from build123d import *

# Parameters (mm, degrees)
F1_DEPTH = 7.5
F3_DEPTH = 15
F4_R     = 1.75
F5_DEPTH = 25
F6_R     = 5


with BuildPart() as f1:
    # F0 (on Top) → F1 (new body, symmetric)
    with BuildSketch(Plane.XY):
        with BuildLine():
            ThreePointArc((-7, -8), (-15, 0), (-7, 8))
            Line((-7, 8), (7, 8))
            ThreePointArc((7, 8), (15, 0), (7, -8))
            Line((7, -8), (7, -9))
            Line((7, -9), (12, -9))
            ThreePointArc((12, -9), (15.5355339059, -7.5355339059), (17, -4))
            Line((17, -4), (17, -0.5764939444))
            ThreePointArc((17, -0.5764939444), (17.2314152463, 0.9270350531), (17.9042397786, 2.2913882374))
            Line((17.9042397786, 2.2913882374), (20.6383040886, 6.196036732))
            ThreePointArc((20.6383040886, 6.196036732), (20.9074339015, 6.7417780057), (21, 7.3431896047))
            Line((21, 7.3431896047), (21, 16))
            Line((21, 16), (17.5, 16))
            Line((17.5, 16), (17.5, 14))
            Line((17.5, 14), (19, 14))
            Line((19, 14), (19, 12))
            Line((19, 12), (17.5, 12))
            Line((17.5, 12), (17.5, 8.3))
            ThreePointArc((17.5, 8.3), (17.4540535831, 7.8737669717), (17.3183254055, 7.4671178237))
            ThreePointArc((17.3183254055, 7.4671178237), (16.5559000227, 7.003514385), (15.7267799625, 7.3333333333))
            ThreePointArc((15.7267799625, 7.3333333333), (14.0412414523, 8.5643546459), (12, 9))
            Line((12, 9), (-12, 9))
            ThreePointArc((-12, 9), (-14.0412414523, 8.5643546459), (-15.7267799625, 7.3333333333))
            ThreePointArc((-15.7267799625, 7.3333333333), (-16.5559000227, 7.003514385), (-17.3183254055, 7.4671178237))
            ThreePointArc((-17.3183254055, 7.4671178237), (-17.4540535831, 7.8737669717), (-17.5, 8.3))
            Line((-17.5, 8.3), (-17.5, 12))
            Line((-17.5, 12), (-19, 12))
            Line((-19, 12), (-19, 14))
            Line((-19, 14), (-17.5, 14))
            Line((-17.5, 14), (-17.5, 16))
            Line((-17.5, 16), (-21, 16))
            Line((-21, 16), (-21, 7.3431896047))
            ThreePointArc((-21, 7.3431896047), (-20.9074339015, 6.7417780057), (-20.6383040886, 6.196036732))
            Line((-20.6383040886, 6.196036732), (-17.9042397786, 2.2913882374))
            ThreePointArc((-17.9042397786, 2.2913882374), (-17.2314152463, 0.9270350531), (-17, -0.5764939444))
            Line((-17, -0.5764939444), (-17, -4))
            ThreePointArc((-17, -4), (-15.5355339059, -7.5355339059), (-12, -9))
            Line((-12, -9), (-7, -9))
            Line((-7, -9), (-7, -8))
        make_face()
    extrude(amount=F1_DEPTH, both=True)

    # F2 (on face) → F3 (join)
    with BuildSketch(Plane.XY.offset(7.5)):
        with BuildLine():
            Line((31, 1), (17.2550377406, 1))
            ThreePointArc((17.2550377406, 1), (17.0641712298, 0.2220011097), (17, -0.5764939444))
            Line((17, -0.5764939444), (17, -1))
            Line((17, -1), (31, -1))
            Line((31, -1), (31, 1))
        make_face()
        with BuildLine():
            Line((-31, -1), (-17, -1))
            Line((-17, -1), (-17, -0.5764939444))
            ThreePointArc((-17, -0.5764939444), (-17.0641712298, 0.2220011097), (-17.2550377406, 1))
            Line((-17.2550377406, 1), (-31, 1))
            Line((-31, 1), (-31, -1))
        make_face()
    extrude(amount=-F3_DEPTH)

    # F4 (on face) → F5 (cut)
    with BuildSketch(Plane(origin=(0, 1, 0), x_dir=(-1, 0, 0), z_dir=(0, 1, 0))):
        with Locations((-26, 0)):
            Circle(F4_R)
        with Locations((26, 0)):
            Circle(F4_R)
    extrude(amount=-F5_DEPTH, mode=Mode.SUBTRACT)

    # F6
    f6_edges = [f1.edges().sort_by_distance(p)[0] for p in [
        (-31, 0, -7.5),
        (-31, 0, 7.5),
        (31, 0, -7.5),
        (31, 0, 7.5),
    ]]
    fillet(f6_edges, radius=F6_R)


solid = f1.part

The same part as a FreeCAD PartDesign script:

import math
import FreeCAD as App
import Part
import Sketcher

V = App.Vector
Q = App.Units.Quantity


def edges_at(feature, points):
    """Names of the edges that pass closest to the given points."""
    edges = feature.Shape.Edges
    near = lambda p: min(range(len(edges)), key=lambda i: edges[i].distToShape(Part.Vertex(*p))[0])
    return sorted({f"Edge{near(p) + 1}" for p in points})

doc = App.newDocument("Part")
body = doc.addObject("PartDesign::Body", "Body")

sketch1 = body.newObject("Sketcher::SketchObject", "Sketch")
sketch1.AttachmentSupport = (doc.getObject("XY_Plane"), [""])
sketch1.MapMode = "FlatFace"
sketch1.addGeometry([
    Part.ArcOfCircle(Part.Circle(V(-7, 0, 0), V(0, 0, 1), 8), math.radians(90), math.radians(270)),
    Part.LineSegment(V(-7, 8, 0), V(7, 8, 0)),
    Part.ArcOfCircle(Part.Circle(V(7, 0, 0), V(0, 0, 1), 8), math.radians(-90), math.radians(90)),
    Part.LineSegment(V(7, -8, 0), V(7, -9, 0)),
    Part.LineSegment(V(7, -9, 0), V(12, -9, 0)),
    Part.ArcOfCircle(Part.Circle(V(12, -4, 0), V(0, 0, 1), 5), math.radians(-90), math.radians(0)),
    Part.LineSegment(V(17, -4, 0), V(17, -0.576494, 0)),
    Part.ArcOfCircle(Part.Circle(V(22, -0.576494, 0), V(0, 0, 1), 5), math.radians(145), math.radians(180)),
    Part.LineSegment(V(17.90424, 2.291388, 0), V(20.638304, 6.196037, 0)),
    Part.ArcOfCircle(Part.Circle(V(19, 7.34319, 0), V(0, 0, 1), 2), math.radians(-35), math.radians(0)),
    Part.LineSegment(V(21, 7.34319, 0), V(21, 16, 0)),
    Part.LineSegment(V(21, 16, 0), V(17.5, 16, 0)),
    Part.LineSegment(V(17.5, 16, 0), V(17.5, 14, 0)),
    Part.LineSegment(V(17.5, 14, 0), V(19, 14, 0)),
    Part.LineSegment(V(19, 14, 0), V(19, 12, 0)),
    Part.LineSegment(V(19, 12, 0), V(17.5, 12, 0)),
    Part.LineSegment(V(17.5, 12, 0), V(17.5, 8.3, 0)),
    Part.ArcOfCircle(Part.Circle(V(15.5, 8.3, 0), V(0, 0, 1), 2), math.radians(-24.610101), math.radians(0)),
    Part.ArcOfCircle(Part.Circle(V(16.472136, 8, 0), V(0, 0, 1), 1), math.radians(-138.189685), math.radians(-32.200399)),
    Part.ArcOfCircle(Part.Circle(V(12, 4, 0), V(0, 0, 1), 5), math.radians(41.810315), math.radians(90)),
    Part.LineSegment(V(12, 9, 0), V(-12, 9, 0)),
    Part.ArcOfCircle(Part.Circle(V(-12, 4, 0), V(0, 0, 1), 5), math.radians(90), math.radians(138.189685)),
    Part.ArcOfCircle(Part.Circle(V(-16.472136, 8, 0), V(0, 0, 1), 1), math.radians(-147.799601), math.radians(-41.810315)),
    Part.ArcOfCircle(Part.Circle(V(-15.5, 8.3, 0), V(0, 0, 1), 2), math.radians(180), math.radians(204.610101)),
    Part.LineSegment(V(-17.5, 8.3, 0), V(-17.5, 12, 0)),
    Part.LineSegment(V(-17.5, 12, 0), V(-19, 12, 0)),
    Part.LineSegment(V(-19, 12, 0), V(-19, 14, 0)),
    Part.LineSegment(V(-19, 14, 0), V(-17.5, 14, 0)),
    Part.LineSegment(V(-17.5, 14, 0), V(-17.5, 16, 0)),
    Part.LineSegment(V(-17.5, 16, 0), V(-21, 16, 0)),
    Part.LineSegment(V(-21, 16, 0), V(-21, 7.34319, 0)),
    Part.ArcOfCircle(Part.Circle(V(-19, 7.34319, 0), V(0, 0, 1), 2), math.radians(180), math.radians(215)),
    Part.LineSegment(V(-20.638304, 6.196037, 0), V(-17.90424, 2.291388, 0)),
    Part.ArcOfCircle(Part.Circle(V(-22, -0.576494, 0), V(0, 0, 1), 5), math.radians(0), math.radians(35)),
    Part.LineSegment(V(-17, -0.576494, 0), V(-17, -4, 0)),
    Part.ArcOfCircle(Part.Circle(V(-12, -4, 0), V(0, 0, 1), 5), math.radians(180), math.radians(270)),
    Part.LineSegment(V(-12, -9, 0), V(-7, -9, 0)),
    Part.LineSegment(V(-7, -9, 0), V(-7, -8, 0)),
], False)
sketch1.addConstraint([
    Sketcher.Constraint("Tangent", 0, 1, 1, 1),
    Sketcher.Constraint("Tangent", 1, 2, 2, 2),
    Sketcher.Constraint("Coincident", 2, 1, 3, 1),
    Sketcher.Constraint("Coincident", 3, 2, 4, 1),
    Sketcher.Constraint("Tangent", 4, 2, 5, 1),
    Sketcher.Constraint("Tangent", 5, 2, 6, 1),
    Sketcher.Constraint("Tangent", 6, 2, 7, 2),
    Sketcher.Constraint("Tangent", 7, 1, 8, 1),
    Sketcher.Constraint("Tangent", 8, 2, 9, 1),
    Sketcher.Constraint("Tangent", 9, 2, 10, 1),
    Sketcher.Constraint("Coincident", 10, 2, 11, 1),
    Sketcher.Constraint("Coincident", 11, 2, 12, 1),
    Sketcher.Constraint("Coincident", 12, 2, 13, 1),
    Sketcher.Constraint("Coincident", 13, 2, 14, 1),
    Sketcher.Constraint("Coincident", 14, 2, 15, 1),
    Sketcher.Constraint("Coincident", 15, 2, 16, 1),
    Sketcher.Constraint("Tangent", 16, 2, 17, 2),
    Sketcher.Constraint("Coincident", 17, 1, 18, 2),
    Sketcher.Constraint("Tangent", 18, 1, 19, 1),
    Sketcher.Constraint("Tangent", 19, 2, 20, 1),
    Sketcher.Constraint("Tangent", 20, 2, 21, 1),
    Sketcher.Constraint("Tangent", 21, 2, 22, 2),
    Sketcher.Constraint("Coincident", 22, 1, 23, 2),
    Sketcher.Constraint("Tangent", 23, 1, 24, 1),
    Sketcher.Constraint("Coincident", 24, 2, 25, 1),
    Sketcher.Constraint("Coincident", 25, 2, 26, 1),
    Sketcher.Constraint("Coincident", 26, 2, 27, 1),
    Sketcher.Constraint("Coincident", 27, 2, 28, 1),
    Sketcher.Constraint("Coincident", 28, 2, 29, 1),
    Sketcher.Constraint("Coincident", 29, 2, 30, 1),
    Sketcher.Constraint("Tangent", 30, 2, 31, 1),
    Sketcher.Constraint("Tangent", 31, 2, 32, 1),
    Sketcher.Constraint("Tangent", 32, 2, 33, 2),
    Sketcher.Constraint("Tangent", 33, 1, 34, 1),
    Sketcher.Constraint("Tangent", 34, 2, 35, 1),
    Sketcher.Constraint("Tangent", 35, 2, 36, 1),
    Sketcher.Constraint("Coincident", 36, 2, 37, 1),
    Sketcher.Constraint("Coincident", 37, 2, 0, 2),
    Sketcher.Constraint("Horizontal", 1),
    Sketcher.Constraint("Vertical", 3),
    Sketcher.Constraint("Horizontal", 4),
    Sketcher.Constraint("Vertical", 6),
    Sketcher.Constraint("Vertical", 10),
    Sketcher.Constraint("Horizontal", 11),
    Sketcher.Constraint("Vertical", 12),
    Sketcher.Constraint("Horizontal", 13),
    Sketcher.Constraint("Vertical", 14),
    Sketcher.Constraint("Horizontal", 15),
    Sketcher.Constraint("Vertical", 16),
    Sketcher.Constraint("Horizontal", 20),
    Sketcher.Constraint("Vertical", 24),
    Sketcher.Constraint("Horizontal", 25),
    Sketcher.Constraint("Vertical", 26),
    Sketcher.Constraint("Horizontal", 27),
    Sketcher.Constraint("Vertical", 28),
    Sketcher.Constraint("Horizontal", 29),
    Sketcher.Constraint("Vertical", 30),
    Sketcher.Constraint("Vertical", 34),
    Sketcher.Constraint("Horizontal", 36),
    Sketcher.Constraint("Vertical", 37),
    Sketcher.Constraint("Equal", 0, 2),
    Sketcher.Constraint("Equal", 5, 7),
    Sketcher.Constraint("Equal", 9, 17),
    Sketcher.Constraint("Equal", 7, 19),
    Sketcher.Constraint("Equal", 19, 21),
    Sketcher.Constraint("Equal", 18, 22),
    Sketcher.Constraint("Equal", 17, 23),
    Sketcher.Constraint("Equal", 23, 31),
    Sketcher.Constraint("Equal", 21, 33),
    Sketcher.Constraint("Equal", 33, 35),
    Sketcher.Constraint("Symmetric", 0, 3, 2, 3, -1, 1),
    Sketcher.Constraint("Symmetric", 5, 3, 21, 3, -1, 1),
    Sketcher.Constraint("Symmetric", 19, 3, 35, 3, -1, 1),
    Sketcher.Constraint("Symmetric", 18, 3, 22, 3, -2),
    Sketcher.Constraint("Symmetric", 17, 3, 23, 3, -2),
    Sketcher.Constraint("Symmetric", 9, 3, 31, 3, -2),
    Sketcher.Constraint("Symmetric", 14, 2, 25, 2, -2),
    Sketcher.Constraint("Symmetric", 12, 2, 27, 2, -2),
    Sketcher.Constraint("Horizontal", 7, 3, 33, 3),
    Sketcher.Constraint("Horizontal", 22, 3, 0, 1),
    Sketcher.Constraint("Horizontal", 11, 2, 28, 2),
    Sketcher.Constraint("Vertical", 1, 2, 2, 1),
    Sketcher.Constraint("Vertical", 9, 3, 13, 2),
    Sketcher.Constraint("Vertical", 12, 2, 15, 2),
    Sketcher.Constraint("Vertical", 0, 1, 36, 2),
    Sketcher.Constraint("Equal", 12, 14),
    Sketcher.Constraint("Radius", 0, Q("8 mm")),
    Sketcher.Constraint("Radius", 5, Q("5 mm")),
    Sketcher.Constraint("Radius", 9, Q("2 mm")),
    Sketcher.Constraint("Radius", 18, Q("1 mm")),
    Sketcher.Constraint("DistanceX", 1, 1, 1, 2, Q("14 mm")),
    Sketcher.Constraint("DistanceX", 4, 1, 4, 2, Q("5 mm")),
    Sketcher.Constraint("DistanceY", 3, 2, 3, 1, Q("1 mm")),
    Sketcher.Constraint("DistanceY", 12, 2, 12, 1, Q("2 mm")),
    Sketcher.Constraint("Angle", 8, Q("55 deg")),
    Sketcher.Constraint("DistanceX", 11, 2, 11, 1, Q("3.5 mm")),
    Sketcher.Constraint("DistanceY", 16, 2, 16, 1, Q("3.7 mm")),
    Sketcher.Constraint("DistanceX", -1, 1, 9, 3, Q("19 mm")),
    Sketcher.Constraint("DistanceY", -1, 1, 10, 2, Q("16 mm")),
    Sketcher.Constraint("DistanceY", 10, 1, 10, 2, Q("8.65681 mm")),
])
pad1 = body.newObject("PartDesign::Pad", "Pad")
pad1.Profile = sketch1
pad1.Length = 15
pad1.Midplane = True

sketch2 = body.newObject("Sketcher::SketchObject", "Sketch001")
sketch2.AttachmentSupport = (doc.getObject("XY_Plane"), [""])
sketch2.MapMode = "FlatFace"
sketch2.AttachmentOffset = App.Placement(V(0, 0, 7.5), App.Rotation())
sketch2.addGeometry([
    Part.LineSegment(V(31, 1, 0), V(17.255038, 1, 0)),
    Part.ArcOfCircle(Part.Circle(V(22, -0.576494, 0), V(0, 0, 1), 5), math.radians(161.621148), math.radians(180)),
    Part.LineSegment(V(17, -0.576494, 0), V(17, -1, 0)),
    Part.LineSegment(V(17, -1, 0), V(31, -1, 0)),
    Part.LineSegment(V(31, -1, 0), V(31, 1, 0)),
    Part.LineSegment(V(-31, -1, 0), V(-17, -1, 0)),
    Part.LineSegment(V(-17, -1, 0), V(-17, -0.576494, 0)),
    Part.ArcOfCircle(Part.Circle(V(-22, -0.576494, 0), V(0, 0, 1), 5), math.radians(0), math.radians(18.378852)),
    Part.LineSegment(V(-17.255038, 1, 0), V(-31, 1, 0)),
    Part.LineSegment(V(-31, 1, 0), V(-31, -1, 0)),
], False)
sketch2.addConstraint([
    Sketcher.Constraint("Coincident", 0, 2, 1, 1),
    Sketcher.Constraint("Tangent", 1, 2, 2, 1),
    Sketcher.Constraint("Coincident", 2, 2, 3, 1),
    Sketcher.Constraint("Coincident", 3, 2, 4, 1),
    Sketcher.Constraint("Coincident", 4, 2, 0, 1),
    Sketcher.Constraint("Coincident", 5, 2, 6, 1),
    Sketcher.Constraint("Tangent", 6, 2, 7, 1),
    Sketcher.Constraint("Coincident", 7, 2, 8, 1),
    Sketcher.Constraint("Coincident", 8, 2, 9, 1),
    Sketcher.Constraint("Coincident", 9, 2, 5, 1),
    Sketcher.Constraint("Horizontal", 0),
    Sketcher.Constraint("Vertical", 2),
    Sketcher.Constraint("Horizontal", 3),
    Sketcher.Constraint("Vertical", 4),
    Sketcher.Constraint("Horizontal", 5),
    Sketcher.Constraint("Vertical", 6),
    Sketcher.Constraint("Horizontal", 8),
    Sketcher.Constraint("Vertical", 9),
    Sketcher.Constraint("Equal", 1, 7),
    Sketcher.Constraint("Symmetric", 3, 2, 8, 2, -1, 1),
    Sketcher.Constraint("Symmetric", 1, 3, 7, 3, -2),
    Sketcher.Constraint("Horizontal", 3, 2, 5, 2),
    Sketcher.Constraint("Horizontal", 4, 2, 7, 2),
    Sketcher.Constraint("Radius", 1, Q("5 mm")),
    Sketcher.Constraint("DistanceX", 3, 1, 3, 2, Q("14 mm")),
    Sketcher.Constraint("DistanceY", 4, 1, 4, 2, Q("2 mm")),
    Sketcher.Constraint("DistanceX", -1, 1, 1, 3, Q("22 mm")),
    Sketcher.Constraint("DistanceX", 0, 2, 0, 1, Q("13.744962 mm")),
])
pad2 = body.newObject("PartDesign::Pad", "Pad001")
pad2.Profile = sketch2
pad2.Length = 15
pad2.Reversed = True

sketch3 = body.newObject("Sketcher::SketchObject", "Sketch002")
sketch3.AttachmentSupport = (doc.getObject("XZ_Plane"), [""])
sketch3.MapMode = "FlatFace"
sketch3.AttachmentOffset = App.Placement(V(0, 0, -1), App.Rotation())
sketch3.addGeometry([
    Part.Circle(V(26, 0, 0), V(0, 0, 1), 1.75),
    Part.Circle(V(-26, 0, 0), V(0, 0, 1), 1.75),
], False)
sketch3.addConstraint([
    Sketcher.Constraint("Equal", 0, 1),
    Sketcher.Constraint("Symmetric", 0, 3, 1, 3, -1, 1),
    Sketcher.Constraint("PointOnObject", 0, 3, -1),
    Sketcher.Constraint("Diameter", 0, Q("3.5 mm")),
    Sketcher.Constraint("DistanceX", -1, 1, 0, 3, Q("26 mm")),
])
pocket1 = body.newObject("PartDesign::Pocket", "Pocket")
pocket1.Profile = sketch3
pocket1.Length = 25
pocket1.Reversed = True
doc.recompute()

fillet = body.newObject("PartDesign::Fillet", "Fillet")
fillet.Base = (pocket1, edges_at(pocket1, [
    (-31, 0, -7.5),
    (-31, 0, 7.5),
    (31, 0, -7.5),
    (31, 0, 7.5),
]))
fillet.Radius = 5

doc.recompute()
